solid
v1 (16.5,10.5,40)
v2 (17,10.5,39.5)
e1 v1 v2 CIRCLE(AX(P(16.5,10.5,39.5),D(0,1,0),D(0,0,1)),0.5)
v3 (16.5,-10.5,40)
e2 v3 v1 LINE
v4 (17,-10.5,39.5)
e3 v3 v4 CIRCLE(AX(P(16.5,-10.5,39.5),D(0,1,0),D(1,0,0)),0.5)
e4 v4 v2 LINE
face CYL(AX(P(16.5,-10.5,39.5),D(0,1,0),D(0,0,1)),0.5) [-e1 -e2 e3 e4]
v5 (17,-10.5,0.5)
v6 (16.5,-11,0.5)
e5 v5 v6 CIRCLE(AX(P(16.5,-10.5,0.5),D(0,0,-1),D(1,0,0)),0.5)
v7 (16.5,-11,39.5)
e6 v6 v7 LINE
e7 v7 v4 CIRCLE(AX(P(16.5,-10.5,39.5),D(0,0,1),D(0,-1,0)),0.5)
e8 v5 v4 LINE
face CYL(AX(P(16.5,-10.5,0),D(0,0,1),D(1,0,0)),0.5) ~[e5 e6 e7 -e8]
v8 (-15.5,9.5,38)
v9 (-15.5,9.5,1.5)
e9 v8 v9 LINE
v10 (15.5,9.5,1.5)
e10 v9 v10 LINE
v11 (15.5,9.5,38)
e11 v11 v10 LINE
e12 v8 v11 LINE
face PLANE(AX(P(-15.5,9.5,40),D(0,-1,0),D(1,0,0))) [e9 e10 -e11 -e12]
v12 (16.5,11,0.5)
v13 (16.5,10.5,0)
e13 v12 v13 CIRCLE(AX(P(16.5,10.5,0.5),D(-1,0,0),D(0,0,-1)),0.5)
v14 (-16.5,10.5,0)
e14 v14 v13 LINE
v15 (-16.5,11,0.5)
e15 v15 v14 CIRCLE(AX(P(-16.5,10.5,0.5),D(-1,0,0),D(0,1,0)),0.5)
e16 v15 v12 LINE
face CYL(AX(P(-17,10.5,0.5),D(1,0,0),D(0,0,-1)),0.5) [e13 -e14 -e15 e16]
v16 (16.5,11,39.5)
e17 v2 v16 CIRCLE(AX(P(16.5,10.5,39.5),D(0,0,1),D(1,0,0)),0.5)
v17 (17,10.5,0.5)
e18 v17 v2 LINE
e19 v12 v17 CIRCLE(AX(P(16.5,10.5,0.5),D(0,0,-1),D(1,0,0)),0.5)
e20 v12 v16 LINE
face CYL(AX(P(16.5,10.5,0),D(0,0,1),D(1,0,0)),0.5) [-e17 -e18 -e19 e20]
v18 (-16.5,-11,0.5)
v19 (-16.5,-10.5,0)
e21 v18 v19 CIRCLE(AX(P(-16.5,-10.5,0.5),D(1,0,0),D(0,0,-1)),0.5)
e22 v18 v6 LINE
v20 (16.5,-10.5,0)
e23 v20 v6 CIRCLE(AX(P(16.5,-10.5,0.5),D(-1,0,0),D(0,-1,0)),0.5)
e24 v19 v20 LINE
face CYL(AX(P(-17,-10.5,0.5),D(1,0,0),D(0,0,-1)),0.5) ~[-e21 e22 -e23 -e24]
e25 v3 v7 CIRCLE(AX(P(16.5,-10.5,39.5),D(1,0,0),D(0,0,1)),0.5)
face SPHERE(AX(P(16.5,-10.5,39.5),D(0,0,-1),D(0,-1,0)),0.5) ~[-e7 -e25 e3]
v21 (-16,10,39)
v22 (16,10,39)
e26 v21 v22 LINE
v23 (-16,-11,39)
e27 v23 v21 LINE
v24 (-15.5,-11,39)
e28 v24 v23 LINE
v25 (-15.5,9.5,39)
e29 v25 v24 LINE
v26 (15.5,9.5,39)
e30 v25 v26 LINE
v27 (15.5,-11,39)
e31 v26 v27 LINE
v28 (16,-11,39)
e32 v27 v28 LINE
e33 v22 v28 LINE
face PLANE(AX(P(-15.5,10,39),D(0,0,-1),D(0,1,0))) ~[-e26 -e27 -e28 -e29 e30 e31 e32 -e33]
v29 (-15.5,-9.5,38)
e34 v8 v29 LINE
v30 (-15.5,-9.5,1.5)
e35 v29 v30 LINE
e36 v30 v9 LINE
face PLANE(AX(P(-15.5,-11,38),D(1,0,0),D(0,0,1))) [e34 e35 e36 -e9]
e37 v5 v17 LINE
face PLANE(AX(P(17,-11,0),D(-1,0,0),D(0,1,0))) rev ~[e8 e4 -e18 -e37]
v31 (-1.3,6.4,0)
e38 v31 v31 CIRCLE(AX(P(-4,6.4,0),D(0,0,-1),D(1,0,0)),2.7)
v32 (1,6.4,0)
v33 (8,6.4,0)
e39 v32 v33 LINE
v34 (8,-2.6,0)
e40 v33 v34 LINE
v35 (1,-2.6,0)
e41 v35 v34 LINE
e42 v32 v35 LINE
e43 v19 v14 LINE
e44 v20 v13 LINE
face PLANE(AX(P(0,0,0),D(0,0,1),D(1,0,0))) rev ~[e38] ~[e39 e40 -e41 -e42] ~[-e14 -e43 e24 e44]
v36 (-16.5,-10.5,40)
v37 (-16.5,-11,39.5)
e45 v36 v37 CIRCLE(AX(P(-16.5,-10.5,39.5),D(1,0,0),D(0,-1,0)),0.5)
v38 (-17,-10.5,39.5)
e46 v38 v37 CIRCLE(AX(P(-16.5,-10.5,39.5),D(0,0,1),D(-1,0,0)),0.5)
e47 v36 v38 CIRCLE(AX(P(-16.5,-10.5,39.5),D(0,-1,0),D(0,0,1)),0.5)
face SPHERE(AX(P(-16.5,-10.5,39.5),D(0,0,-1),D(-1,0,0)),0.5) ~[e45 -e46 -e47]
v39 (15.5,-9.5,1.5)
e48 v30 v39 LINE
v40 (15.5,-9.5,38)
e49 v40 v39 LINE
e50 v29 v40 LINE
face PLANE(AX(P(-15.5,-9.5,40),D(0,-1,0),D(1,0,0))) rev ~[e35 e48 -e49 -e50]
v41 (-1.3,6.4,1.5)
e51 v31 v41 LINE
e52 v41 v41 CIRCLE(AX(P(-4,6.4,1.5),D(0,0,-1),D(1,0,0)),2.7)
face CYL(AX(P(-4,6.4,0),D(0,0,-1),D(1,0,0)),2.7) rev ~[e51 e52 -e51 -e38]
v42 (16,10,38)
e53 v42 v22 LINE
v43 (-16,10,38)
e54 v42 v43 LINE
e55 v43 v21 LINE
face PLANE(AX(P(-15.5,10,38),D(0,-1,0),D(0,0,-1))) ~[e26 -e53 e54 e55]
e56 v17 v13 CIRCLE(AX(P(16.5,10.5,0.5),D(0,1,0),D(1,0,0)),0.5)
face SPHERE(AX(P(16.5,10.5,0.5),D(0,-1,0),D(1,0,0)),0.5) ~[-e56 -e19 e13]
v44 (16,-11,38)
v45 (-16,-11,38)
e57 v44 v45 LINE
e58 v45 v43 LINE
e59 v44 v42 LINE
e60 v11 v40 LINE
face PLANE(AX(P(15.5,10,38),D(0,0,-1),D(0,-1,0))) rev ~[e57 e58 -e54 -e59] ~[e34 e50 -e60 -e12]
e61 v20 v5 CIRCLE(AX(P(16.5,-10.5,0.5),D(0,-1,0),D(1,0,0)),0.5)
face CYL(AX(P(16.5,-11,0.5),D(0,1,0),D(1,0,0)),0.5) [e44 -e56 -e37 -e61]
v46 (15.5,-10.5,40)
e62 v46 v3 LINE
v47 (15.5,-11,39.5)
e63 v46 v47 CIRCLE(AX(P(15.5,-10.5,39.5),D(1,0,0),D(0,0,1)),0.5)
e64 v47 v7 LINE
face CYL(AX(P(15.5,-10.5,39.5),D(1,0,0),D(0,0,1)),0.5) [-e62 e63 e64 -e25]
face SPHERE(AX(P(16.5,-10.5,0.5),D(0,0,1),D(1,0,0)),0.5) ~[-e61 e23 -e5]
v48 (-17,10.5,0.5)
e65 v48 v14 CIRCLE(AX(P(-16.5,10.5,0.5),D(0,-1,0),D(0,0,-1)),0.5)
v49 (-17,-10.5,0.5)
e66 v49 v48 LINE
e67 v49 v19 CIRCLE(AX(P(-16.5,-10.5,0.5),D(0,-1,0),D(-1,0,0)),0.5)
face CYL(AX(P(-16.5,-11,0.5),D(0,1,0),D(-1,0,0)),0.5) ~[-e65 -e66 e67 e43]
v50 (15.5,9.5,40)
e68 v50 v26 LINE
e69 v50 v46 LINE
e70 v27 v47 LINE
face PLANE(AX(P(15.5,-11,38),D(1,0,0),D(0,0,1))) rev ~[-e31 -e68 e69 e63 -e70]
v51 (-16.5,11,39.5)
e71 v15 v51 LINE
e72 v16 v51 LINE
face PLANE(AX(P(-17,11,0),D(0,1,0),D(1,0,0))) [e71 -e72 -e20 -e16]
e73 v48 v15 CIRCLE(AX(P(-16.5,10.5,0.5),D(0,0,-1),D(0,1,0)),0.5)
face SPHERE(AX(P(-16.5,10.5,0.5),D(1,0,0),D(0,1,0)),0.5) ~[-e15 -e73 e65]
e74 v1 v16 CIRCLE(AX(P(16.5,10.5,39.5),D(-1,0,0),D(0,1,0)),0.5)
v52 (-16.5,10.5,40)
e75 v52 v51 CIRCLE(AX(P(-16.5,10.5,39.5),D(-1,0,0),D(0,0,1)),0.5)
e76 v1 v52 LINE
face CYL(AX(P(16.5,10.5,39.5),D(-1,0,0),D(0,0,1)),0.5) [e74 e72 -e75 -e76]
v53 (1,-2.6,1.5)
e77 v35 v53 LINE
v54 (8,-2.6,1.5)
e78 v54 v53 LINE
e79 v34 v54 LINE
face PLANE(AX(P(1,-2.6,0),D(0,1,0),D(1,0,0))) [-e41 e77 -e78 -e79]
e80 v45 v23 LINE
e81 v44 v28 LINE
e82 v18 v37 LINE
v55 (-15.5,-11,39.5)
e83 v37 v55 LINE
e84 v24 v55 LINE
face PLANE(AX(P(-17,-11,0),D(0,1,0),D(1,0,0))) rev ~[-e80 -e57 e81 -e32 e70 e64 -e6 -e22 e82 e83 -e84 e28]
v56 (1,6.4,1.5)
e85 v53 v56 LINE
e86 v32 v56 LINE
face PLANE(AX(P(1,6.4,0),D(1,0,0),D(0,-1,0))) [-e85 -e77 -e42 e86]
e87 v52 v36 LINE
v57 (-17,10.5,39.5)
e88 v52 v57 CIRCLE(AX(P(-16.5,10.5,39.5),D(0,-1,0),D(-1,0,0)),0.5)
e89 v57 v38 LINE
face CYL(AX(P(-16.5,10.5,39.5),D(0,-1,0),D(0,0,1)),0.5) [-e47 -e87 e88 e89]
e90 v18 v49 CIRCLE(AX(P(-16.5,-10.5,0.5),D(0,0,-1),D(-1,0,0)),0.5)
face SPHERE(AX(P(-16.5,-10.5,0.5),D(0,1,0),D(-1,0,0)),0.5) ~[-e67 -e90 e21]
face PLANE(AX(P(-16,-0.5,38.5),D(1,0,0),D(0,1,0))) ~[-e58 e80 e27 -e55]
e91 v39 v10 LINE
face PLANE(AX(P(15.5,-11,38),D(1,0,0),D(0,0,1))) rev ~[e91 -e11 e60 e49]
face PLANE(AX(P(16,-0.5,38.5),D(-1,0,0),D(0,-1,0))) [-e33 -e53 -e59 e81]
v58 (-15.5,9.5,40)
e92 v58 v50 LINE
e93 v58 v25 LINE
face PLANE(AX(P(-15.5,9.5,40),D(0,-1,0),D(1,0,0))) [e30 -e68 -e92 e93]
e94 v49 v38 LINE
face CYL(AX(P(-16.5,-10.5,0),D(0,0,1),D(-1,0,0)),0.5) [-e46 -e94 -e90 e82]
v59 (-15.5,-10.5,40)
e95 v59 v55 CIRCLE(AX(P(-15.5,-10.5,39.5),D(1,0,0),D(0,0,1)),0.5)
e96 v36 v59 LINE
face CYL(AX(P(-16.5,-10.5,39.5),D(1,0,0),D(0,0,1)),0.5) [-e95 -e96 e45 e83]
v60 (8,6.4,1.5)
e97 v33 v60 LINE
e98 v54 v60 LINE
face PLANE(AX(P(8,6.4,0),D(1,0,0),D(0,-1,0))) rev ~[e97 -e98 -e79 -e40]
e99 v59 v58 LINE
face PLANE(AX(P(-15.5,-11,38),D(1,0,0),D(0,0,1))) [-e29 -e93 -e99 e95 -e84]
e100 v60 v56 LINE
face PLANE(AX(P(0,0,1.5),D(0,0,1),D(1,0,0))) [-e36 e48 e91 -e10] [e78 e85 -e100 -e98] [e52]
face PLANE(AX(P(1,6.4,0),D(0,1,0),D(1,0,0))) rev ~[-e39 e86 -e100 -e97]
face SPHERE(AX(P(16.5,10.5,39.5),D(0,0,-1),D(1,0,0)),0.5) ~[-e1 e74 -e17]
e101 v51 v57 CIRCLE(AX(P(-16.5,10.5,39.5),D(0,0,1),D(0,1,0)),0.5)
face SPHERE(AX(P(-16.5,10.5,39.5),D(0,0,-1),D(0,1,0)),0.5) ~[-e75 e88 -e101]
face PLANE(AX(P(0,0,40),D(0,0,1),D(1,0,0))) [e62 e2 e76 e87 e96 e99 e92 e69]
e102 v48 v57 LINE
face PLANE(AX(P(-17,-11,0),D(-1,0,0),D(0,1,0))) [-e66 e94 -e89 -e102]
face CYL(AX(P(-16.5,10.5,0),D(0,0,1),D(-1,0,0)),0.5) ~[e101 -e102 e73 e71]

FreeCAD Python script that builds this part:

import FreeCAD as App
import Part
import Sketcher

V = App.Vector


def edges_at(feature, points):
    """Names of the edges that pass closest to the given points."""
    edges = feature.Shape.Edges
    near = lambda p: min(range(len(edges)), key=lambda i: edges[i].distToShape(Part.Vertex(*p))[0])
    return sorted({f"Edge{near(p) + 1}" for p in points})


def add_polygon(sketch, points):
    """Adds a closed chain of lines whose ends are joined by coincident constraints."""
    first, n = sketch.GeometryCount, len(points)
    for a, b in zip(points, points[1:] + points[:1]):
        sketch.addGeometry(Part.LineSegment(App.Vector(*a, 0), App.Vector(*b, 0)), False)
    for i in range(n):
        sketch.addConstraint(Sketcher.Constraint("Coincident", first + i, 2, first + (i + 1) % n, 1))

doc = App.newDocument("Part")
body = doc.addObject("PartDesign::Body", "Body")

sketch1 = body.newObject("Sketcher::SketchObject", "Sketch")
sketch1.AttachmentSupport = (doc.getObject("XY_Plane"), [""])
sketch1.MapMode = "FlatFace"
add_polygon(sketch1, [(-17, 11), (-17, -11), (17, -11), (17, 11)])
sketch1.addConstraint([
    Sketcher.Constraint("Vertical", 0),
    Sketcher.Constraint("Horizontal", 1),
    Sketcher.Constraint("Vertical", 2),
    Sketcher.Constraint("Horizontal", 3),
    Sketcher.Constraint("Symmetric", 0, 2, 2, 2, -1, 1),
    Sketcher.Constraint("DistanceX", 1, 1, 1, 2, 34.0),
    Sketcher.Constraint("DistanceY", 0, 2, 0, 1, 22.0),
])
pad1 = body.newObject("PartDesign::Pad", "Pad")
pad1.Profile = sketch1
pad1.Length = 40

sketch2 = body.newObject("Sketcher::SketchObject", "Sketch001")
sketch2.AttachmentSupport = (doc.getObject("XY_Plane"), [""])
sketch2.MapMode = "FlatFace"
sketch2.AttachmentOffset = App.Placement(V(0, 0, 40), App.Rotation())
add_polygon(sketch2, [(-15.5, 9.5), (-15.5, -9.5), (15.5, -9.5), (15.5, 9.5)])
sketch2.addConstraint([
    Sketcher.Constraint("Vertical", 0),
    Sketcher.Constraint("Horizontal", 1),
    Sketcher.Constraint("Vertical", 2),
    Sketcher.Constraint("Horizontal", 3),
    Sketcher.Constraint("Symmetric", 0, 2, 2, 2, -1, 1),
    Sketcher.Constraint("DistanceX", 1, 1, 1, 2, 31.0),
    Sketcher.Constraint("DistanceY", 0, 2, 0, 1, 19.0),
])
pocket1 = body.newObject("PartDesign::Pocket", "Pocket")
pocket1.Profile = sketch2
pocket1.Length = 38.5

sketch3 = body.newObject("Sketcher::SketchObject", "Sketch002")
sketch3.AttachmentSupport = (doc.getObject("XY_Plane"), [""])
sketch3.MapMode = "FlatFace"
sketch3.addGeometry(Part.Circle(V(-4, 6.4, 0), V(0, 0, 1), 2.7), False)
add_polygon(sketch3, [(1, -2.6), (1, 6.4), (8, 6.4), (8, -2.6)])
sketch3.addConstraint([
    Sketcher.Constraint("Vertical", 1),
    Sketcher.Constraint("Horizontal", 2),
    Sketcher.Constraint("Vertical", 3),
    Sketcher.Constraint("Horizontal", 4),
    Sketcher.Constraint("Horizontal", 0, 3, 1, 2),
    Sketcher.Constraint("Diameter", 0, 5.4),
    Sketcher.Constraint("DistanceX", 2, 1, 2, 2, 7.0),
    Sketcher.Constraint("DistanceY", 1, 1, 1, 2, 9.0),
    Sketcher.Constraint("DistanceX", 0, 3, -1, 1, 4.0),
    Sketcher.Constraint("DistanceX", -1, 1, 1, 2, 1.0),
    Sketcher.Constraint("DistanceY", -1, 1, 0, 3, 6.4),
])
pocket2 = body.newObject("PartDesign::Pocket", "Pocket001")
pocket2.Profile = sketch3
pocket2.Type = "ThroughAll"
pocket2.Reversed = True

sketch4 = body.newObject("Sketcher::SketchObject", "Sketch003")
sketch4.AttachmentSupport = (doc.getObject("XZ_Plane"), [""])
sketch4.MapMode = "FlatFace"
sketch4.AttachmentOffset = App.Placement(V(0, 0, 11), App.Rotation())
add_polygon(sketch4, [(-15.5, 40), (-15.5, 38), (15.5, 38), (15.5, 40)])
sketch4.addConstraint([
    Sketcher.Constraint("Vertical", 0),
    Sketcher.Constraint("Horizontal", 1),
    Sketcher.Constraint("Vertical", 2),
    Sketcher.Constraint("Horizontal", 3),
    Sketcher.Constraint("DistanceX", 1, 1, 1, 2, 31.0),
    Sketcher.Constraint("DistanceY", 0, 2, 0, 1, 2.0),
    Sketcher.Constraint("DistanceY", -1, 1, 0, 2, 38.0),
    Sketcher.Constraint("DistanceX", 0, 2, -1, 1, 15.5),
])
pocket3 = body.newObject("PartDesign::Pocket", "Pocket002")
pocket3.Profile = sketch4
pocket3.Length = 1.5

sketch5 = body.newObject("Sketcher::SketchObject", "Sketch004")
sketch5.AttachmentSupport = (doc.getObject("YZ_Plane"), [""])
sketch5.MapMode = "FlatFace"
sketch5.AttachmentOffset = App.Placement(V(0, 0, 15.5), App.Rotation())
add_polygon(sketch5, [(10, 39), (10, 38), (-11, 38), (-11, 39)])
sketch5.addConstraint([
    Sketcher.Constraint("Vertical", 0),
    Sketcher.Constraint("Horizontal", 1),
    Sketcher.Constraint("Vertical", 2),
    Sketcher.Constraint("Horizontal", 3),
    Sketcher.Constraint("DistanceX", 1, 2, 1, 1, 21.0),
    Sketcher.Constraint("DistanceY", 0, 2, 0, 1, 1.0),
    Sketcher.Constraint("DistanceX", -1, 1, 0, 2, 10.0),
    Sketcher.Constraint("DistanceY", -1, 1, 0, 2, 38.0),
])
pocket4 = body.newObject("PartDesign::Pocket", "Pocket003")
pocket4.Profile = sketch5
pocket4.Length = 0.5
pocket4.Reversed = True
doc.recompute()

mirrored = body.newObject("PartDesign::Mirrored", "Mirrored")
mirrored.Originals = [pocket4]
mirrored.MirrorPlane = (doc.getObject("YZ_Plane"), [""])
body.Tip = mirrored

sketch6 = body.newObject("Sketcher::SketchObject", "Sketch005")
sketch6.AttachmentSupport = (doc.getObject("XZ_Plane"), [""])
sketch6.MapMode = "FlatFace"
sketch6.AttachmentOffset = App.Placement(V(0, 0, -9.5), App.Rotation())
add_polygon(sketch6, [(-16, 39), (-16, 38), (16, 38), (16, 39)])
sketch6.addConstraint([
    Sketcher.Constraint("Vertical", 0),
    Sketcher.Constraint("Horizontal", 1),
    Sketcher.Constraint("Vertical", 2),
    Sketcher.Constraint("Horizontal", 3),
    Sketcher.Constraint("DistanceX", 1, 1, 1, 2, 32.0),
    Sketcher.Constraint("DistanceY", 0, 2, 0, 1, 1.0),
    Sketcher.Constraint("DistanceX", 0, 2, -1, 1, 16.0),
    Sketcher.Constraint("DistanceY", -1, 1, 0, 2, 38.0),
])
pocket5 = body.newObject("PartDesign::Pocket", "Pocket004")
pocket5.Profile = sketch6
pocket5.Length = 0.5
doc.recompute()

fillet = body.newObject("PartDesign::Fillet", "Fillet")
fillet.Base = (pocket5, edges_at(pocket5, [
    (17, -11, 20),
    (17, 0, 0),
    (17, 11, 20),
    (0, 11, 0),
    (-17, 11, 20),
    (-17, 0, 0),
    (-17, -11, 20),
    (0, -11, 0),
]))
fillet.Radius = 0.5
doc.recompute()

fillet2 = body.newObject("PartDesign::Fillet", "Fillet001")
fillet2.Base = (fillet, edges_at(fillet, [(17, 0, 40), (0, 11, 40), (-17, 0, 40)]))
fillet2.Radius = 0.5

doc.recompute()
